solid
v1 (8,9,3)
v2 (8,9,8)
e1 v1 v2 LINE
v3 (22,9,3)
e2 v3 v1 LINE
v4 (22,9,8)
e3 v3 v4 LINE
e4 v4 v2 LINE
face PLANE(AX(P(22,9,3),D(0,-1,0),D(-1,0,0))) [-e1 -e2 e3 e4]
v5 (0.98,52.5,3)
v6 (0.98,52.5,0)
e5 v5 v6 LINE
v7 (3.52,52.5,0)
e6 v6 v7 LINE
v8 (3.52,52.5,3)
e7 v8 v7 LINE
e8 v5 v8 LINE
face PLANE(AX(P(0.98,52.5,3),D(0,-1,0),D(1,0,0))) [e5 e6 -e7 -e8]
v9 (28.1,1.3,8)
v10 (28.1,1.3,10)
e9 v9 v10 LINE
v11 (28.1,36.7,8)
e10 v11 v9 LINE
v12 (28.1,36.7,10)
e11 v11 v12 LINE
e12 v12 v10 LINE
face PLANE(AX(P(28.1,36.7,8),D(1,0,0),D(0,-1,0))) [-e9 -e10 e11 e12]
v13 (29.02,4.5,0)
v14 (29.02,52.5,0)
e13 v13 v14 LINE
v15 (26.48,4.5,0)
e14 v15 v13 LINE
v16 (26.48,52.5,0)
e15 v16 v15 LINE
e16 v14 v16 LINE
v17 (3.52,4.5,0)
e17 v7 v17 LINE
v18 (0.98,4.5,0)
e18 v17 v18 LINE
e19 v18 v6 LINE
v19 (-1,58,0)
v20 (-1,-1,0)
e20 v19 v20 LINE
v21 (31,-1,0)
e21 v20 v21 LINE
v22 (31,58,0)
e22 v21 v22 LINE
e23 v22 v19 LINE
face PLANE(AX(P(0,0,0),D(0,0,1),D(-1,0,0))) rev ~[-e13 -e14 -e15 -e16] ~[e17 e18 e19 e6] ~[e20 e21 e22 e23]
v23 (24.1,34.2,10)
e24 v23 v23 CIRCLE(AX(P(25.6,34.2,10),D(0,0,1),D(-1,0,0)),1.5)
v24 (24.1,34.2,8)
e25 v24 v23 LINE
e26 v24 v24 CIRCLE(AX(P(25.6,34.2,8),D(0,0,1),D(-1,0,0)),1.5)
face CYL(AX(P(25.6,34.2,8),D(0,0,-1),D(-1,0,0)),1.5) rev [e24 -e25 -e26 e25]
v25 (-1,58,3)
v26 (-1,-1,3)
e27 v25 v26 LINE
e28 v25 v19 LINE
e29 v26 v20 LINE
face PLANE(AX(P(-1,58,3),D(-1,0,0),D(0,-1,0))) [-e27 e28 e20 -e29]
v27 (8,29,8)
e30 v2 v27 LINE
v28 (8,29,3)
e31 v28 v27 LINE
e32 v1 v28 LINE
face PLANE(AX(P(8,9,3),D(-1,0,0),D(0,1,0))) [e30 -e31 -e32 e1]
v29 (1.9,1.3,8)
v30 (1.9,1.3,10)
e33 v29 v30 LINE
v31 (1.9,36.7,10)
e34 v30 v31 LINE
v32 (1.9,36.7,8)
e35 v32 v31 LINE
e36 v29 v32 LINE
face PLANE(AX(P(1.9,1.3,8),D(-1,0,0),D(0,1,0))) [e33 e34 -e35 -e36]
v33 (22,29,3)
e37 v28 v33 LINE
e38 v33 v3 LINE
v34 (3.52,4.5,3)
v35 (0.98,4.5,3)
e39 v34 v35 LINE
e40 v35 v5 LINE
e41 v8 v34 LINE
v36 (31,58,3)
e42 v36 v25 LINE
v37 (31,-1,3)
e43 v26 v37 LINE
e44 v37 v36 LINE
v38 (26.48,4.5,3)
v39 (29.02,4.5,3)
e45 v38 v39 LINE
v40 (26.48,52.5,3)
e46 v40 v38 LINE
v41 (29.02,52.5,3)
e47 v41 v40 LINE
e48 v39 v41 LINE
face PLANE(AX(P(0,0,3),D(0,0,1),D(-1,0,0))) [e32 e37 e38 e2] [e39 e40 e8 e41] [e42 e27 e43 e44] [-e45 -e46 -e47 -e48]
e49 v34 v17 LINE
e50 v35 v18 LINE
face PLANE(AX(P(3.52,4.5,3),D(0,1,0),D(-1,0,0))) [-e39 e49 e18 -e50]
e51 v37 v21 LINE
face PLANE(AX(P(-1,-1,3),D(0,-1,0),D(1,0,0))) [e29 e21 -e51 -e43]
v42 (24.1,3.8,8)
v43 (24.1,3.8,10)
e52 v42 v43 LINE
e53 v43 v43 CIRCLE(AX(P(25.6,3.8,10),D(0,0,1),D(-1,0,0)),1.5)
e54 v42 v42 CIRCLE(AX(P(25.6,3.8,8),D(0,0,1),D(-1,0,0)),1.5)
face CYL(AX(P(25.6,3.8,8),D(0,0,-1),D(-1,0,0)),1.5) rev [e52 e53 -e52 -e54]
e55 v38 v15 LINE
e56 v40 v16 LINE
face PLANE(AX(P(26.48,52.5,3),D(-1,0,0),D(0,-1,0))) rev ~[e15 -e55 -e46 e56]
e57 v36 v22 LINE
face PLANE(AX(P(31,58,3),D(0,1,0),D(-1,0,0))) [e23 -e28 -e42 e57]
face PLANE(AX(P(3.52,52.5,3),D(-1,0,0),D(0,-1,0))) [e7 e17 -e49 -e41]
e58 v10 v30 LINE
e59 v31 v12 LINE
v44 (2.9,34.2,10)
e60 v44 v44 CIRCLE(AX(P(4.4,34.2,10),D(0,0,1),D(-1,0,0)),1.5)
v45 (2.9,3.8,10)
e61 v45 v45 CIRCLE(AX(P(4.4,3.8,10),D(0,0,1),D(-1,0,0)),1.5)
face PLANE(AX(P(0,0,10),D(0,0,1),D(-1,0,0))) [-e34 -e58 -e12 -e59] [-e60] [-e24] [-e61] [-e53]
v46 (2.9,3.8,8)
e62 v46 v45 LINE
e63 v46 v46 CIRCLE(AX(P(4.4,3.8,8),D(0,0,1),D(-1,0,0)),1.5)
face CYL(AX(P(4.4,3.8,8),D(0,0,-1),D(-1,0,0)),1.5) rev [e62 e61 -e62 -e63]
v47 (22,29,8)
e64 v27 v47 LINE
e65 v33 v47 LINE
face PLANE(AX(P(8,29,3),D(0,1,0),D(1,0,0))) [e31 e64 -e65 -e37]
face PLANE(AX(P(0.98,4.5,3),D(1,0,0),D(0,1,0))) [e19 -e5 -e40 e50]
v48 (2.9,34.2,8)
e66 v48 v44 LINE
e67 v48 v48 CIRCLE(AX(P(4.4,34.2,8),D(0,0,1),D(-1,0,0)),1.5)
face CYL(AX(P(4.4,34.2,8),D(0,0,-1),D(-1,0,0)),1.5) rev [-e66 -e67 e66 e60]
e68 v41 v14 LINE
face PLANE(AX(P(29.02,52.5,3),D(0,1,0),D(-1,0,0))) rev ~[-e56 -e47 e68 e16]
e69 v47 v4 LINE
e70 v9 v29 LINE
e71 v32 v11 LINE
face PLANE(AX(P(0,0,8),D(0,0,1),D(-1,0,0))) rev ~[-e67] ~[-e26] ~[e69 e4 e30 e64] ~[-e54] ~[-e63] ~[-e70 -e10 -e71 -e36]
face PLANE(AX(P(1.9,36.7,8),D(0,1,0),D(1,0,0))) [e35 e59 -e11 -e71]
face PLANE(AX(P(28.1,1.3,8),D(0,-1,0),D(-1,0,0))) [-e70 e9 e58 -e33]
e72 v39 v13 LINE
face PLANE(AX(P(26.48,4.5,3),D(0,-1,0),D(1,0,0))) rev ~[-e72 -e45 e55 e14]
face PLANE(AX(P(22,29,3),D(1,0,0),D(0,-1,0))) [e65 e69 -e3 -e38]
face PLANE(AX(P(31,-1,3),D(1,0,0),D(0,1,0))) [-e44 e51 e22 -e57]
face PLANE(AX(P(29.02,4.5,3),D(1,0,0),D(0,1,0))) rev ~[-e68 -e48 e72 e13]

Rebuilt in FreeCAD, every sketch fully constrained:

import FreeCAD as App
import Part
import Sketcher

V = App.Vector
Q = App.Units.Quantity

doc = App.newDocument("Part")
body = doc.addObject("PartDesign::Body", "Body")

# Sketch on XY plane
sketch1 = body.newObject("Sketcher::SketchObject", "Sketch")
sketch1.AttachmentSupport = (doc.getObject("XY_Plane"), [""])
sketch1.MapMode = "FlatFace"
sketch1.addGeometry([
    Part.LineSegment(V(0, 57, 0), V(0, 0, 0)),
    Part.LineSegment(V(0, 0, 0), V(30, 0, 0)),
    Part.LineSegment(V(30, 0, 0), V(30, 57, 0)),
    Part.LineSegment(V(30, 57, 0), V(0, 57, 0)),
], False)
sketch1.addConstraint([
    Sketcher.Constraint("Coincident", 0, 2, 1, 1),
    Sketcher.Constraint("Coincident", 1, 2, 2, 1),
    Sketcher.Constraint("Coincident", 2, 2, 3, 1),
    Sketcher.Constraint("Coincident", 3, 2, 0, 1),
    Sketcher.Constraint("Vertical", 0),
    Sketcher.Constraint("Horizontal", 1),
    Sketcher.Constraint("Vertical", 2),
    Sketcher.Constraint("Horizontal", 3),
    Sketcher.Constraint("Coincident", 0, 2, -1, 1),
    Sketcher.Constraint("DistanceX", 1, 1, 1, 2, Q("30 mm")),
    Sketcher.Constraint("DistanceY", 0, 2, 0, 1, Q("57 mm")),
])
pad1 = body.newObject("PartDesign::Pad", "Pad")
pad1.Profile = sketch1
pad1.Length = 3

# Sketch on XY plane
sketch2 = body.newObject("Sketcher::SketchObject", "Sketch001")
sketch2.AttachmentSupport = (doc.getObject("XY_Plane"), [""])
sketch2.MapMode = "FlatFace"
sketch2.AttachmentOffset = App.Placement(V(0, 0, 3), App.Rotation())
sketch2.addGeometry([
    Part.LineSegment(V(3.5, 52.5, 0), V(1, 52.5, 0)),  # 0
    Part.LineSegment(V(1, 52.5, 0), V(1, 4.5, 0)),  # 1
    Part.LineSegment(V(1, 4.5, 0), V(3.5, 4.5, 0)),  # 2
    Part.LineSegment(V(3.5, 4.5, 0), V(3.5, 52.5, 0)),  # 3
    Part.LineSegment(V(29, 52.5, 0), V(26.5, 52.5, 0)),  # 4
    Part.LineSegment(V(26.5, 52.5, 0), V(26.5, 4.5, 0)),  # 5
    Part.LineSegment(V(26.5, 4.5, 0), V(29, 4.5, 0)),  # 6
    Part.LineSegment(V(29, 4.5, 0), V(29, 52.5, 0)),  # 7
], False)
sketch2.addConstraint([
    Sketcher.Constraint("Coincident", 0, 2, 1, 1),
    Sketcher.Constraint("Coincident", 1, 2, 2, 1),
    Sketcher.Constraint("Coincident", 2, 2, 3, 1),
    Sketcher.Constraint("Coincident", 3, 2, 0, 1),
    Sketcher.Constraint("Coincident", 4, 2, 5, 1),
    Sketcher.Constraint("Coincident", 5, 2, 6, 1),
    Sketcher.Constraint("Coincident", 6, 2, 7, 1),
    Sketcher.Constraint("Coincident", 7, 2, 4, 1),
    Sketcher.Constraint("Horizontal", 0),
    Sketcher.Constraint("Vertical", 1),
    Sketcher.Constraint("Horizontal", 2),
    Sketcher.Constraint("Vertical", 3),
    Sketcher.Constraint("Horizontal", 4),
    Sketcher.Constraint("Vertical", 5),
    Sketcher.Constraint("Horizontal", 6),
    Sketcher.Constraint("Vertical", 7),
    Sketcher.Constraint("Horizontal", 3, 2, 4, 2),
    Sketcher.Constraint("Horizontal", 2, 2, 5, 2),
    Sketcher.Constraint("Equal", 2, 4),
    Sketcher.Constraint("DistanceY", 1, 2, 1, 1, Q("48 mm")),
    Sketcher.Constraint("DistanceX", 0, 2, 0, 1, Q("2.54 mm")),
    Sketcher.Constraint("DistanceX", 0, 2, 4, 2, Q("25.5 mm")),
    Sketcher.Constraint("DistanceY", -1, 1, 0, 2, Q("52.5 mm")),
    Sketcher.Constraint("DistanceX", -1, 1, 0, 2, Q("0.98 mm")),
])
pocket1 = body.newObject("PartDesign::Pocket", "Pocket")
pocket1.Profile = sketch2
pocket1.Type = "ThroughAll"

# Sketch on XY plane
sketch3 = body.newObject("Sketcher::SketchObject", "Sketch002")
sketch3.AttachmentSupport = (doc.getObject("XY_Plane"), [""])
sketch3.MapMode = "FlatFace"
sketch3.AttachmentOffset = App.Placement(V(0, 0, 3), App.Rotation())
sketch3.addGeometry([
    Part.LineSegment(V(31, 58, 0), V(-1, 58, 0)),  # 0
    Part.LineSegment(V(-1, 58, 0), V(-1, -1, 0)),  # 1
    Part.LineSegment(V(-1, -1, 0), V(31, -1, 0)),  # 2
    Part.LineSegment(V(31, -1, 0), V(31, 58, 0)),  # 3
    Part.LineSegment(V(0, 0, 0), V(0, 57, 0)),  # 4
    Part.LineSegment(V(0, 57, 0), V(30, 57, 0)),  # 5
    Part.LineSegment(V(30, 57, 0), V(30, 0, 0)),  # 6
    Part.LineSegment(V(30, 0, 0), V(0, 0, 0)),  # 7
], False)
sketch3.addConstraint([
    Sketcher.Constraint("Coincident", 0, 2, 1, 1),
    Sketcher.Constraint("Coincident", 1, 2, 2, 1),
    Sketcher.Constraint("Coincident", 2, 2, 3, 1),
    Sketcher.Constraint("Coincident", 3, 2, 0, 1),
    Sketcher.Constraint("Coincident", 4, 2, 5, 1),
    Sketcher.Constraint("Coincident", 5, 2, 6, 1),
    Sketcher.Constraint("Coincident", 6, 2, 7, 1),
    Sketcher.Constraint("Coincident", 7, 2, 4, 1),
    Sketcher.Constraint("Horizontal", 0),
    Sketcher.Constraint("Vertical", 1),
    Sketcher.Constraint("Horizontal", 2),
    Sketcher.Constraint("Vertical", 3),
    Sketcher.Constraint("Vertical", 4),
    Sketcher.Constraint("Horizontal", 5),
    Sketcher.Constraint("Vertical", 6),
    Sketcher.Constraint("Horizontal", 7),
    Sketcher.Constraint("Coincident", 7, 2, -1, 1),
    Sketcher.Constraint("DistanceX", 0, 2, -1, 1, Q("1 mm")),
    Sketcher.Constraint("DistanceY", 1, 2, -1, 1, Q("1 mm")),
    Sketcher.Constraint("DistanceY", 4, 2, 0, 2, Q("1 mm")),
    Sketcher.Constraint("DistanceX", 5, 2, 3, 2, Q("1 mm")),
    Sketcher.Constraint("DistanceX", 0, 2, 0, 1, Q("32 mm")),
    Sketcher.Constraint("DistanceY", 1, 2, 1, 1, Q("59 mm")),
])
pad2 = body.newObject("PartDesign::Pad", "Pad001")
pad2.Profile = sketch3
pad2.Length = 3
pad2.Reversed = True

# Sketch on XY plane
sketch4 = body.newObject("Sketcher::SketchObject", "Sketch003")
sketch4.AttachmentSupport = (doc.getObject("XY_Plane"), [""])
sketch4.MapMode = "FlatFace"
sketch4.AttachmentOffset = App.Placement(V(0, 0, 3), App.Rotation())
sketch4.addGeometry([
    Part.LineSegment(V(8, 9, 0), V(22, 9, 0)),
    Part.LineSegment(V(22, 9, 0), V(22, 29, 0)),
    Part.LineSegment(V(22, 29, 0), V(8, 29, 0)),
    Part.LineSegment(V(8, 29, 0), V(8, 9, 0)),
], False)
sketch4.addConstraint([
    Sketcher.Constraint("Coincident", 0, 2, 1, 1),
    Sketcher.Constraint("Coincident", 1, 2, 2, 1),
    Sketcher.Constraint("Coincident", 2, 2, 3, 1),
    Sketcher.Constraint("Coincident", 3, 2, 0, 1),
    Sketcher.Constraint("Horizontal", 0),
    Sketcher.Constraint("Vertical", 1),
    Sketcher.Constraint("Horizontal", 2),
    Sketcher.Constraint("Vertical", 3),
    Sketcher.Constraint("DistanceX", 0, 1, 0, 2, Q("14 mm")),
    Sketcher.Constraint("DistanceY", 1, 1, 1, 2, Q("20 mm")),
    Sketcher.Constraint("DistanceX", -1, 1, 0, 2, Q("22 mm")),
    Sketcher.Constraint("DistanceY", -1, 1, 0, 2, Q("9 mm")),
])
pad3 = body.newObject("PartDesign::Pad", "Pad002")
pad3.Profile = sketch4
pad3.Length = 5

# Sketch on XY plane
sketch5 = body.newObject("Sketcher::SketchObject", "Sketch004")
sketch5.AttachmentSupport = (doc.getObject("XY_Plane"), [""])
sketch5.MapMode = "FlatFace"
sketch5.AttachmentOffset = App.Placement(V(0, 0, 8), App.Rotation())
sketch5.addGeometry([
    Part.LineSegment(V(1.9, 1.3, 0), V(28.1, 1.3, 0)),  # 0
    Part.LineSegment(V(28.1, 1.3, 0), V(28.1, 36.7, 0)),  # 1
    Part.LineSegment(V(28.1, 36.7, 0), V(1.9, 36.7, 0)),  # 2
    Part.LineSegment(V(1.9, 36.7, 0), V(1.9, 1.3, 0)),  # 3
    Part.Circle(V(4.4, 3.8, 0), V(0, 0, 1), 1.5),  # 4
    Part.Circle(V(4.4, 34.2, 0), V(0, 0, 1), 1.5),  # 5
    Part.Circle(V(25.6, 34.2, 0), V(0, 0, 1), 1.5),  # 6
    Part.Circle(V(25.6, 3.8, 0), V(0, 0, 1), 1.5),  # 7
], False)
sketch5.addConstraint([
    Sketcher.Constraint("Coincident", 0, 2, 1, 1),
    Sketcher.Constraint("Coincident", 1, 2, 2, 1),
    Sketcher.Constraint("Coincident", 2, 2, 3, 1),
    Sketcher.Constraint("Coincident", 3, 2, 0, 1),
    Sketcher.Constraint("Horizontal", 0),
    Sketcher.Constraint("Vertical", 1),
    Sketcher.Constraint("Horizontal", 2),
    Sketcher.Constraint("Vertical", 3),
    Sketcher.Constraint("Equal", 4, 5),
    Sketcher.Constraint("Equal", 5, 6),
    Sketcher.Constraint("Equal", 6, 7),
    Sketcher.Constraint("Horizontal", 5, 3, 6, 3),
    Sketcher.Constraint("Horizontal", 4, 3, 7, 3),
    Sketcher.Constraint("Vertical", 4, 3, 5, 3),
    Sketcher.Constraint("Vertical", 6, 3, 7, 3),
    Sketcher.Constraint("Diameter", 4, Q("3 mm")),
    Sketcher.Constraint("DistanceX", 0, 1, 0, 2, Q("26.2 mm")),
    Sketcher.Constraint("DistanceY", 1, 1, 1, 2, Q("35.4 mm")),
    Sketcher.Constraint("DistanceY", 4, 3, 5, 3, Q("30.4 mm")),
    Sketcher.Constraint("DistanceX", 5, 3, 6, 3, Q("21.2 mm")),
    Sketcher.Constraint("DistanceX", -1, 1, 4, 3, Q("4.4 mm")),
    Sketcher.Constraint("DistanceY", -1, 1, 4, 3, Q("3.8 mm")),
    Sketcher.Constraint("DistanceX", -1, 1, 0, 2, Q("28.1 mm")),
    Sketcher.Constraint("DistanceY", -1, 1, 0, 2, Q("1.3 mm")),
])
pad4 = body.newObject("PartDesign::Pad", "Pad003")
pad4.Profile = sketch5
pad4.Length = 2

doc.recompute()
